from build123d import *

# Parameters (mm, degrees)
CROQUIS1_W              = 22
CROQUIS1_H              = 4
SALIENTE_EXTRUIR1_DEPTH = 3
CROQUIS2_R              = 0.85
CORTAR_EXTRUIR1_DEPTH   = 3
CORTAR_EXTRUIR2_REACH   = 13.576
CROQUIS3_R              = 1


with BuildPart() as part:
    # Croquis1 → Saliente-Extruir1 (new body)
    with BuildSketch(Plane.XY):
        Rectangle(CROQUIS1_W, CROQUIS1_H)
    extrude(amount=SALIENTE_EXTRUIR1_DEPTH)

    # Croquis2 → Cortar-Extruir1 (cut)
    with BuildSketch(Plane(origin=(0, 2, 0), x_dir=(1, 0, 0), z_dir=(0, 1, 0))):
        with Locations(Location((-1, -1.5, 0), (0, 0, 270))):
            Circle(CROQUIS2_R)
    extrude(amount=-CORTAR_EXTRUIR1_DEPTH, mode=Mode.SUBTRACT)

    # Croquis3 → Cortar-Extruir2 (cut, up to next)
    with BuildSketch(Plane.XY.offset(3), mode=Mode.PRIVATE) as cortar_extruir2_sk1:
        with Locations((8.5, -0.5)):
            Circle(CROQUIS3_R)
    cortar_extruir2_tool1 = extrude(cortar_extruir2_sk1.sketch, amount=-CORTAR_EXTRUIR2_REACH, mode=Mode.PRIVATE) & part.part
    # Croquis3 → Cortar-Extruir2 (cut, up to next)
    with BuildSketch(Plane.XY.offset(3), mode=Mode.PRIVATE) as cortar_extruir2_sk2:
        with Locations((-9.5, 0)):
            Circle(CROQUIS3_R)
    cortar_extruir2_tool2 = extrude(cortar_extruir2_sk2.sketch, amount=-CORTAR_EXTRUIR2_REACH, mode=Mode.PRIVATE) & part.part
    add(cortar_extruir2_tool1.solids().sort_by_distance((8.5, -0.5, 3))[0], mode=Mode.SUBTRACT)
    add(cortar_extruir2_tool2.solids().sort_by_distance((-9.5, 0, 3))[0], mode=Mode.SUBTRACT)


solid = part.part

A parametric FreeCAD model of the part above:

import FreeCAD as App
import Part
import Sketcher
from FreeCAD import Vector

doc = App.newDocument("Part")
body = doc.addObject("PartDesign::Body", "Body")

# Sketch on XY plane
sketch1 = body.newObject("Sketcher::SketchObject", "Sketch")
sketch1.AttachmentSupport = (doc.getObject("XY_Plane"), [""])
sketch1.MapMode = "FlatFace"
sketch1.addGeometry(Part.LineSegment(Vector(-11, 2, 0), Vector(-11, -2, 0)), False)
sketch1.addGeometry(Part.LineSegment(Vector(-11, -2, 0), Vector(11, -2, 0)), False)
sketch1.addGeometry(Part.LineSegment(Vector(11, -2, 0), Vector(11, 2, 0)), False)
sketch1.addGeometry(Part.LineSegment(Vector(11, 2, 0), Vector(-11, 2, 0)), False)
sketch1.addConstraint(Sketcher.Constraint("Coincident", 0, 2, 1, 1))
sketch1.addConstraint(Sketcher.Constraint("Coincident", 1, 2, 2, 1))
sketch1.addConstraint(Sketcher.Constraint("Coincident", 2, 2, 3, 1))
sketch1.addConstraint(Sketcher.Constraint("Coincident", 3, 2, 0, 1))
sketch1.addConstraint(Sketcher.Constraint("Vertical", 0))
sketch1.addConstraint(Sketcher.Constraint("Horizontal", 1))
sketch1.addConstraint(Sketcher.Constraint("Vertical", 2))
sketch1.addConstraint(Sketcher.Constraint("Horizontal", 3))
sketch1.addConstraint(Sketcher.Constraint("Symmetric", 0, 2, 2, 2, -1, 1))
sketch1.addConstraint(Sketcher.Constraint("DistanceX", 1, 1, 1, 2, 22.0))
sketch1.addConstraint(Sketcher.Constraint("DistanceY", 0, 2, 0, 1, 4.0))
pad1 = body.newObject("PartDesign::Pad", "Pad")
pad1.Profile = sketch1
pad1.Length = 3

# Sketch on XZ plane
sketch2 = body.newObject("Sketcher::SketchObject", "Sketch001")
sketch2.AttachmentSupport = (doc.getObject("XZ_Plane"), [""])
sketch2.MapMode = "FlatFace"
sketch2.AttachmentOffset = App.Placement(Vector(0, 0, -2), App.Rotation())
sketch2.addGeometry(Part.Circle(Vector(-1, 1.5, 0), Vector(0, 0, 1), 0.85), False)
sketch2.addConstraint(Sketcher.Constraint("Diameter", 0, 1.7))
sketch2.addConstraint(Sketcher.Constraint("DistanceX", 0, 3, -1, 1, 1.0))
sketch2.addConstraint(Sketcher.Constraint("DistanceY", -1, 1, 0, 3, 1.5))
pocket1 = body.newObject("PartDesign::Pocket", "Pocket")
pocket1.Profile = sketch2
pocket1.Length = 3
pocket1.Reversed = True

# Sketch on XY plane
sketch3 = body.newObject("Sketcher::SketchObject", "Sketch002")
sketch3.AttachmentSupport = (doc.getObject("XY_Plane"), [""])
sketch3.MapMode = "FlatFace"
sketch3.AttachmentOffset = App.Placement(Vector(0, 0, 3), App.Rotation())
sketch3.addGeometry(Part.Circle(Vector(8.5, -0.5, 0), Vector(0, 0, 1), 1), False)
sketch3.addConstraint(Sketcher.Constraint("Diameter", 0, 2.0))
sketch3.addConstraint(Sketcher.Constraint("DistanceX", -1, 1, 0, 3, 8.5))
sketch3.addConstraint(Sketcher.Constraint("DistanceY", 0, 3, -1, 1, 0.5))
pocket2 = body.newObject("PartDesign::Pocket", "Pocket001")
pocket2.Profile = sketch3
pocket2.Type = "UpToFirst"

# Sketch on XY plane
sketch4 = body.newObject("Sketcher::SketchObject", "Sketch003")
sketch4.AttachmentSupport = (doc.getObject("XY_Plane"), [""])
sketch4.MapMode = "FlatFace"
sketch4.AttachmentOffset = App.Placement(Vector(0, 0, 3), App.Rotation())
sketch4.addGeometry(Part.Circle(Vector(-9.5, 0, 0), Vector(0, 0, 1), 1), False)
sketch4.addConstraint(Sketcher.Constraint("PointOnObject", 0, 3, -1))
sketch4.addConstraint(Sketcher.Constraint("Diameter", 0, 2.0))
sketch4.addConstraint(Sketcher.Constraint("DistanceX", 0, 3, -1, 1, 9.5))
pocket3 = body.newObject("PartDesign::Pocket", "Pocket002")
pocket3.Profile = sketch4
pocket3.Type = "UpToFirst"

doc.recompute()
